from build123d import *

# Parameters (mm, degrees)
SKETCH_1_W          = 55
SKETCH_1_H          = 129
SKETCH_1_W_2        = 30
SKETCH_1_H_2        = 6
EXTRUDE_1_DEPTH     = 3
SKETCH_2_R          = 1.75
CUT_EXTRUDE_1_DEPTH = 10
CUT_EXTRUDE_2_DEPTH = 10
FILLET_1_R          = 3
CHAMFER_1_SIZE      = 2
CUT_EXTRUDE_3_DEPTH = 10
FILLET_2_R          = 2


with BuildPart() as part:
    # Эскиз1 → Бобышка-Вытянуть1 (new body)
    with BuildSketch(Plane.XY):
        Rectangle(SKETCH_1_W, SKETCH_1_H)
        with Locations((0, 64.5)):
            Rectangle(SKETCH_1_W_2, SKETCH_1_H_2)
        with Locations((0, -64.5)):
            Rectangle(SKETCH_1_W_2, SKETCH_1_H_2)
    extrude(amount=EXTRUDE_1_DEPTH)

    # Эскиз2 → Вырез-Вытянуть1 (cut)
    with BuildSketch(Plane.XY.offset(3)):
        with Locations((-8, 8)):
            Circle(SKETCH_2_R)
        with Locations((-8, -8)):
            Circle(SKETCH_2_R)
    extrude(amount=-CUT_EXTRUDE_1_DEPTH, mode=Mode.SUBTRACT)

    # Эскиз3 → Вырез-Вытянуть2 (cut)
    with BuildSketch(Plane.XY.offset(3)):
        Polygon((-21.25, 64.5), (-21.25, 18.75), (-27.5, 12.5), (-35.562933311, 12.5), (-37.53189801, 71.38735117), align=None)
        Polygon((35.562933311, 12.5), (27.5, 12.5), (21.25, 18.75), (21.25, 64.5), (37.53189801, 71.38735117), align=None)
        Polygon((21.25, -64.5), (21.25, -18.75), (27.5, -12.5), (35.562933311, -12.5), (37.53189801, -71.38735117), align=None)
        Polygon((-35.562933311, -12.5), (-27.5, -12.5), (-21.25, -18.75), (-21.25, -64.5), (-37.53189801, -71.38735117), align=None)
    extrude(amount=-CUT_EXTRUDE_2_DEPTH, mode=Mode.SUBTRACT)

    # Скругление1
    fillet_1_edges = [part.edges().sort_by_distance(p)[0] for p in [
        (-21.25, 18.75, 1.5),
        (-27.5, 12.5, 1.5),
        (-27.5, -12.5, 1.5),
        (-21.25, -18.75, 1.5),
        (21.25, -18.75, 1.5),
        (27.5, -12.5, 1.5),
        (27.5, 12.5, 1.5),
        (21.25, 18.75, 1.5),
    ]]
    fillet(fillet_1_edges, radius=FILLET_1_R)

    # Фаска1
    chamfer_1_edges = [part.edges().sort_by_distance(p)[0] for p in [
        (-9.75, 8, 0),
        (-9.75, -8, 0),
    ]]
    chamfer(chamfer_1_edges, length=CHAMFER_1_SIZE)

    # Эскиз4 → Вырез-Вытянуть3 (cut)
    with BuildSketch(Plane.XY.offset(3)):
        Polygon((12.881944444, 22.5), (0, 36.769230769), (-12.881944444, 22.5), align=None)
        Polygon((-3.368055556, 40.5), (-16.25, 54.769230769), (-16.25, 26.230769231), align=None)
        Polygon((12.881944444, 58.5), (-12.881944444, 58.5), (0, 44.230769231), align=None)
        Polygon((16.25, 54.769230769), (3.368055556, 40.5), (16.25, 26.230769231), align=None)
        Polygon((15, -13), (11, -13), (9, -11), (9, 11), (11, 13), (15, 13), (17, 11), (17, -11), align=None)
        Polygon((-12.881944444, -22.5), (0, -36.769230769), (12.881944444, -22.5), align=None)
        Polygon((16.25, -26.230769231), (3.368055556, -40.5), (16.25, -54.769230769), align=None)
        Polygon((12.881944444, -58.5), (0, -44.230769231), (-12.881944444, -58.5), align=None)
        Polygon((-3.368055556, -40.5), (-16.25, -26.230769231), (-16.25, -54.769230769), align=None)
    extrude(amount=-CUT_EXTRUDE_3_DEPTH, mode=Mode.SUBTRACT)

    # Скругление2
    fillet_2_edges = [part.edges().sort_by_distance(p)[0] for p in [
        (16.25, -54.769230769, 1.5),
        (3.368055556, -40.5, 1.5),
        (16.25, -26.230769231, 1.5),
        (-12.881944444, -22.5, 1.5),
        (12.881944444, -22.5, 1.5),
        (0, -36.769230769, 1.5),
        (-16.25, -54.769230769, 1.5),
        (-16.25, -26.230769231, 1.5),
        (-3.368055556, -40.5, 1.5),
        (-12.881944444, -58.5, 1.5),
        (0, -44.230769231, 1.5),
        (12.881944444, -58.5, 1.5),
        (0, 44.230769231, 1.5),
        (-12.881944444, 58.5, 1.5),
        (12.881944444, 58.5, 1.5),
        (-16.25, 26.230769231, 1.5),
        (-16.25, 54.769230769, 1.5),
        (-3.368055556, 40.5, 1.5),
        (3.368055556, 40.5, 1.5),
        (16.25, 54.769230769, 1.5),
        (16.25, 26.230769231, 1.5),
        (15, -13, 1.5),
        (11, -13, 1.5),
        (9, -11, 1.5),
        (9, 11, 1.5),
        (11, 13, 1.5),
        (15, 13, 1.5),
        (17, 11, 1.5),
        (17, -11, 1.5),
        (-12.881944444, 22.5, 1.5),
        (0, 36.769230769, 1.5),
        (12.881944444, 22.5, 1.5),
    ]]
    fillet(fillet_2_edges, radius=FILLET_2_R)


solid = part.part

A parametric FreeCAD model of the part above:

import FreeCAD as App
import Part
import Sketcher

V = App.Vector
Q = App.Units.Quantity


def edges_at(feature, points):
    """Names of the edges that pass closest to the given points."""
    edges = feature.Shape.Edges
    near = lambda p: min(range(len(edges)), key=lambda i: edges[i].distToShape(Part.Vertex(*p))[0])
    return sorted({f"Edge{near(p) + 1}" for p in points})


def add_polygon(sketch, points):
    """Adds a closed chain of lines whose ends are joined by coincident constraints."""
    first, n = sketch.GeometryCount, len(points)
    for a, b in zip(points, points[1:] + points[:1]):
        sketch.addGeometry(Part.LineSegment(App.Vector(*a, 0), App.Vector(*b, 0)), False)
    for i in range(n):
        sketch.addConstraint(Sketcher.Constraint("Coincident", first + i, 2, first + (i + 1) % n, 1))

doc = App.newDocument("Part")
body = doc.addObject("PartDesign::Body", "Body")

sketch1 = body.newObject("Sketcher::SketchObject", "Sketch")
sketch1.AttachmentSupport = (doc.getObject("XY_Plane"), [""])
sketch1.MapMode = "FlatFace"
add_polygon(sketch1, [(-27.5, 64.5), (-27.5, -64.5), (-15, -64.5), (-15, -67.5), (15, -67.5), (15, -64.5), (27.5, -64.5), (27.5, 64.5), (15, 64.5), (15, 67.5), (-15, 67.5), (-15, 64.5)])
sketch1.addConstraint([
    Sketcher.Constraint("Vertical", 0),
    Sketcher.Constraint("Horizontal", 1),
    Sketcher.Constraint("Vertical", 2),
    Sketcher.Constraint("Horizontal", 3),
    Sketcher.Constraint("Vertical", 4),
    Sketcher.Constraint("Horizontal", 5),
    Sketcher.Constraint("Vertical", 6),
    Sketcher.Constraint("Horizontal", 7),
    Sketcher.Constraint("Vertical", 8),
    Sketcher.Constraint("Horizontal", 9),
    Sketcher.Constraint("Vertical", 10),
    Sketcher.Constraint("Horizontal", 11),
    Sketcher.Constraint("Symmetric", 0, 2, 6, 2, -1, 1),
    Sketcher.Constraint("Symmetric", 2, 2, 8, 2, -1, 1),
    Sketcher.Constraint("Symmetric", 4, 2, 10, 2, -1, 1),
    Sketcher.Constraint("Symmetric", 1, 2, 4, 2, -2),
    Sketcher.Constraint("DistanceX", 3, 1, 3, 2, Q("30 mm")),
    Sketcher.Constraint("DistanceY", 0, 2, 0, 1, Q("129 mm")),
    Sketcher.Constraint("DistanceY", 2, 2, 2, 1, Q("3 mm")),
    Sketcher.Constraint("DistanceX", 1, 1, 1, 2, Q("12.5 mm")),
])
pad1 = body.newObject("PartDesign::Pad", "Pad")
pad1.Profile = sketch1
pad1.Length = 3

sketch2 = body.newObject("Sketcher::SketchObject", "Sketch001")
sketch2.AttachmentSupport = (doc.getObject("XY_Plane"), [""])
sketch2.MapMode = "FlatFace"
sketch2.AttachmentOffset = App.Placement(V(0, 0, 3), App.Rotation())
sketch2.addGeometry([
    Part.Circle(V(-8, 8, 0), V(0, 0, 1), 1.75),
    Part.Circle(V(-8, -8, 0), V(0, 0, 1), 1.75),
], False)
sketch2.addConstraint([
    Sketcher.Constraint("Equal", 0, 1),
    Sketcher.Constraint("Symmetric", 0, 3, 1, 3, -1),
    Sketcher.Constraint("Diameter", 0, Q("3.5 mm")),
    Sketcher.Constraint("DistanceX", 0, 3, -1, 1, Q("8 mm")),
    Sketcher.Constraint("DistanceY", -1, 1, 0, 3, Q("8 mm")),
])
pocket1 = body.newObject("PartDesign::Pocket", "Pocket")
pocket1.Profile = sketch2
pocket1.Length = 10

sketch3 = body.newObject("Sketcher::SketchObject", "Sketch002")
sketch3.AttachmentSupport = (doc.getObject("XY_Plane"), [""])
sketch3.MapMode = "FlatFace"
sketch3.AttachmentOffset = App.Placement(V(0, 0, 3), App.Rotation())
add_polygon(sketch3, [(-21.25, 18.75), (-21.25, 64.5), (-37.531898, 71.387351), (-35.562933, 12.5), (-27.5, 12.5)])
add_polygon(sketch3, [(27.5, 12.5), (35.562933, 12.5), (37.531898, 71.387351), (21.25, 64.5), (21.25, 18.75)])
add_polygon(sketch3, [(21.25, -18.75), (21.25, -64.5), (37.531898, -71.387351), (35.562933, -12.5), (27.5, -12.5)])
add_polygon(sketch3, [(-27.5, -12.5), (-35.562933, -12.5), (-37.531898, -71.387351), (-21.25, -64.5), (-21.25, -18.75)])
sketch3.addConstraint([
    Sketcher.Constraint("Vertical", 0),
    Sketcher.Constraint("Horizontal", 3),
    Sketcher.Constraint("Horizontal", 5),
    Sketcher.Constraint("Vertical", 8),
    Sketcher.Constraint("Vertical", 10),
    Sketcher.Constraint("Horizontal", 13),
    Sketcher.Constraint("Horizontal", 15),
    Sketcher.Constraint("Vertical", 18),
    Sketcher.Constraint("Symmetric", 0, 2, 10, 2, -1, 1),
    Sketcher.Constraint("Symmetric", 1, 2, 11, 2, -1, 1),
    Sketcher.Constraint("Symmetric", 2, 2, 12, 2, -1, 1),
    Sketcher.Constraint("Symmetric", 5, 2, 15, 2, -1, 1),
    Sketcher.Constraint("Symmetric", 6, 2, 16, 2, -1, 1),
    Sketcher.Constraint("Symmetric", 7, 2, 17, 2, -1, 1),
    Sketcher.Constraint("Symmetric", 2, 2, 5, 2, -2),
    Sketcher.Constraint("Symmetric", 1, 2, 6, 2, -2),
    Sketcher.Constraint("Symmetric", 0, 2, 7, 2, -2),
    Sketcher.Constraint("Perpendicular", 4, 9),
    Sketcher.Constraint("Perpendicular", 9, 14),
    Sketcher.Constraint("Perpendicular", 14, 19),
    Sketcher.Constraint("Horizontal", 4, 2, 8, 2),
    Sketcher.Constraint("Horizontal", 14, 2, 18, 2),
    Sketcher.Constraint("Vertical", 9, 2, 13, 2),
    Sketcher.Constraint("Vertical", 3, 2, 19, 2),
    Sketcher.Constraint("DistanceY", 2, 2, 0, 2, Q("52 mm")),
    Sketcher.Constraint("DistanceX", 3, 2, 9, 2, Q("55 mm")),
    Sketcher.Constraint("DistanceY", 10, 2, 9, 2, Q("77 mm")),
    Sketcher.Constraint("DistanceY", 0, 1, 0, 2, Q("45.75 mm")),
    Sketcher.Constraint("DistanceX", 1, 2, -1, 1, Q("37.531898 mm")),
    Sketcher.Constraint("Distance", 2, Q("58.920259 mm")),
    Sketcher.Constraint("DistanceX", 3, 1, 3, 2, Q("8.062933 mm")),
])
pocket2 = body.newObject("PartDesign::Pocket", "Pocket001")
pocket2.Profile = sketch3
pocket2.Length = 10
doc.recompute()

fillet = body.newObject("PartDesign::Fillet", "Fillet")
fillet.Base = (pocket2, edges_at(pocket2, [
    (-21.25, 18.75, 1.5),
    (-27.5, 12.5, 1.5),
    (-27.5, -12.5, 1.5),
    (-21.25, -18.75, 1.5),
    (21.25, -18.75, 1.5),
    (27.5, -12.5, 1.5),
    (27.5, 12.5, 1.5),
    (21.25, 18.75, 1.5),
]))
fillet.Radius = 3
doc.recompute()

chamfer = body.newObject("PartDesign::Chamfer", "Chamfer")
chamfer.Base = (fillet, edges_at(fillet, [(-9.75, 8, 0), (-9.75, -8, 0)]))
chamfer.Size = 2

sketch4 = body.newObject("Sketcher::SketchObject", "Sketch003")
sketch4.AttachmentSupport = (doc.getObject("XY_Plane"), [""])
sketch4.MapMode = "FlatFace"
sketch4.AttachmentOffset = App.Placement(V(0, 0, 3), App.Rotation())
add_polygon(sketch4, [(12.881944, 22.5), (0, 36.769231), (-12.881944, 22.5)])
add_polygon(sketch4, [(-3.368056, 40.5), (-16.25, 54.769231), (-16.25, 26.230769)])
add_polygon(sketch4, [(12.881944, 58.5), (-12.881944, 58.5), (0, 44.230769)])
add_polygon(sketch4, [(16.25, 54.769231), (3.368056, 40.5), (16.25, 26.230769)])
add_polygon(sketch4, [(11, -13), (15, -13), (17, -11), (17, 11), (15, 13), (11, 13), (9, 11), (9, -11)])
add_polygon(sketch4, [(-12.881944, -22.5), (0, -36.769231), (12.881944, -22.5)])
add_polygon(sketch4, [(16.25, -26.230769), (3.368056, -40.5), (16.25, -54.769231)])
add_polygon(sketch4, [(12.881944, -58.5), (0, -44.230769), (-12.881944, -58.5)])
add_polygon(sketch4, [(-3.368056, -40.5), (-16.25, -26.230769), (-16.25, -54.769231)])
sketch4.addConstraint([
    Sketcher.Constraint("Horizontal", 2),
    Sketcher.Constraint("Vertical", 4),
    Sketcher.Constraint("Horizontal", 6),
    Sketcher.Constraint("Vertical", 11),
    Sketcher.Constraint("Horizontal", 12),
    Sketcher.Constraint("Vertical", 14),
    Sketcher.Constraint("Horizontal", 16),
    Sketcher.Constraint("Vertical", 18),
    Sketcher.Constraint("Horizontal", 22),
    Sketcher.Constraint("Vertical", 25),
    Sketcher.Constraint("Horizontal", 28),
    Sketcher.Constraint("Vertical", 30),
    Sketcher.Constraint("Symmetric", 0, 2, 20, 2, -1, 1),
    Sketcher.Constraint("Symmetric", 1, 2, 21, 2, -1, 1),
    Sketcher.Constraint("Symmetric", 5, 2, 23, 2, -1, 1),
    Sketcher.Constraint("Symmetric", 3, 2, 24, 2, -1, 1),
    Sketcher.Constraint("Symmetric", 7, 2, 26, 2, -1, 1),
    Sketcher.Constraint("Symmetric", 8, 2, 27, 2, -1, 1),
    Sketcher.Constraint("Symmetric", 10, 2, 29, 2, -1, 1),
    Sketcher.Constraint("Symmetric", 9, 2, 31, 2, -1, 1),
    Sketcher.Constraint("Symmetric", 5, 2, 9, 2, -2),
    Sketcher.Constraint("Symmetric", 4, 2, 10, 2, -2),
    Sketcher.Constraint("Symmetric", 12, 2, 15, 2, -1),
    Sketcher.Constraint("PointOnObject", 0, 2, -2),
    Sketcher.Constraint("PointOnObject", 7, 2, -2),
    Sketcher.Constraint("Parallel", 0, 3),
    Sketcher.Constraint("Parallel", 1, 5),
    Sketcher.Constraint("Parallel", 3, 7),
    Sketcher.Constraint("Parallel", 5, 8),
    Sketcher.Constraint("Parallel", 8, 9),
    Sketcher.Constraint("Parallel", 7, 10),
    Sketcher.Constraint("Perpendicular", 13, 15),
    Sketcher.Constraint("Perpendicular", 15, 17),
    Sketcher.Constraint("Perpendicular", 17, 19),
    Sketcher.Constraint("Parallel", 10, 20),
    Sketcher.Constraint("Parallel", 21, 23),
    Sketcher.Constraint("Parallel", 24, 26),
    Sketcher.Constraint("Parallel", 27, 31),
    Sketcher.Constraint("Horizontal", 14, 2, 17, 2),
    Sketcher.Constraint("Horizontal", 13, 2, 18, 2),
    Sketcher.Constraint("Vertical", 1, 2, 6, 2),
    Sketcher.Constraint("Vertical", 16, 2, 19, 2),
    Sketcher.Constraint("Equal", 1, 3),
    Sketcher.Constraint("DistanceX", 12, 1, 12, 2, Q("4 mm")),
    Sketcher.Constraint("DistanceY", 14, 1, 14, 2, Q("22 mm")),
    Sketcher.Constraint("DistanceX", -1, 1, 12, 2, Q("15 mm")),
    Sketcher.Constraint("DistanceY", 12, 2, -1, 1, Q("13 mm")),
    Sketcher.Constraint("DistanceY", 0, 2, 3, 2, Q("18 mm")),
    Sketcher.Constraint("DistanceY", 5, 2, 6, 2, Q("18 mm")),
    Sketcher.Constraint("DistanceY", -1, 1, 1, 2, Q("22.5 mm")),
    Sketcher.Constraint("DistanceX", 3, 2, -1, 1, Q("16.25 mm")),
    Sketcher.Constraint("DistanceX", 2, 1, 2, 2, Q("25.763889 mm")),
    Sketcher.Constraint("DistanceY", 4, 2, 4, 1, Q("28.538462 mm")),
])
pocket3 = body.newObject("PartDesign::Pocket", "Pocket002")
pocket3.Profile = sketch4
pocket3.Length = 10
doc.recompute()

fillet2 = body.newObject("PartDesign::Fillet", "Fillet001")
fillet2.Base = (pocket3, edges_at(pocket3, [
    (16.25, -54.769, 1.5),
    (3.368, -40.5, 1.5),
    (16.25, -26.231, 1.5),
    (-12.882, -22.5, 1.5),
    (12.882, -22.5, 1.5),
    (0, -36.769, 1.5),
    (-16.25, -54.769, 1.5),
    (-16.25, -26.231, 1.5),
    (-3.368, -40.5, 1.5),
    (-12.882, -58.5, 1.5),
    (0, -44.231, 1.5),
    (12.882, -58.5, 1.5),
    (0, 44.231, 1.5),
    (-12.882, 58.5, 1.5),
    (12.882, 58.5, 1.5),
    (-16.25, 26.231, 1.5),
    (-16.25, 54.769, 1.5),
    (-3.368, 40.5, 1.5),
    (3.368, 40.5, 1.5),
    (16.25, 54.769, 1.5),
    (16.25, 26.231, 1.5),
    (15, -13, 1.5),
    (11, -13, 1.5),
    (9, -11, 1.5),
    (9, 11, 1.5),
    (11, 13, 1.5),
    (15, 13, 1.5),
    (17, 11, 1.5),
    (17, -11, 1.5),
    (-12.882, 22.5, 1.5),
    (0, 36.769, 1.5),
    (12.882, 22.5, 1.5),
]))
fillet2.Radius = 2

doc.recompute()
